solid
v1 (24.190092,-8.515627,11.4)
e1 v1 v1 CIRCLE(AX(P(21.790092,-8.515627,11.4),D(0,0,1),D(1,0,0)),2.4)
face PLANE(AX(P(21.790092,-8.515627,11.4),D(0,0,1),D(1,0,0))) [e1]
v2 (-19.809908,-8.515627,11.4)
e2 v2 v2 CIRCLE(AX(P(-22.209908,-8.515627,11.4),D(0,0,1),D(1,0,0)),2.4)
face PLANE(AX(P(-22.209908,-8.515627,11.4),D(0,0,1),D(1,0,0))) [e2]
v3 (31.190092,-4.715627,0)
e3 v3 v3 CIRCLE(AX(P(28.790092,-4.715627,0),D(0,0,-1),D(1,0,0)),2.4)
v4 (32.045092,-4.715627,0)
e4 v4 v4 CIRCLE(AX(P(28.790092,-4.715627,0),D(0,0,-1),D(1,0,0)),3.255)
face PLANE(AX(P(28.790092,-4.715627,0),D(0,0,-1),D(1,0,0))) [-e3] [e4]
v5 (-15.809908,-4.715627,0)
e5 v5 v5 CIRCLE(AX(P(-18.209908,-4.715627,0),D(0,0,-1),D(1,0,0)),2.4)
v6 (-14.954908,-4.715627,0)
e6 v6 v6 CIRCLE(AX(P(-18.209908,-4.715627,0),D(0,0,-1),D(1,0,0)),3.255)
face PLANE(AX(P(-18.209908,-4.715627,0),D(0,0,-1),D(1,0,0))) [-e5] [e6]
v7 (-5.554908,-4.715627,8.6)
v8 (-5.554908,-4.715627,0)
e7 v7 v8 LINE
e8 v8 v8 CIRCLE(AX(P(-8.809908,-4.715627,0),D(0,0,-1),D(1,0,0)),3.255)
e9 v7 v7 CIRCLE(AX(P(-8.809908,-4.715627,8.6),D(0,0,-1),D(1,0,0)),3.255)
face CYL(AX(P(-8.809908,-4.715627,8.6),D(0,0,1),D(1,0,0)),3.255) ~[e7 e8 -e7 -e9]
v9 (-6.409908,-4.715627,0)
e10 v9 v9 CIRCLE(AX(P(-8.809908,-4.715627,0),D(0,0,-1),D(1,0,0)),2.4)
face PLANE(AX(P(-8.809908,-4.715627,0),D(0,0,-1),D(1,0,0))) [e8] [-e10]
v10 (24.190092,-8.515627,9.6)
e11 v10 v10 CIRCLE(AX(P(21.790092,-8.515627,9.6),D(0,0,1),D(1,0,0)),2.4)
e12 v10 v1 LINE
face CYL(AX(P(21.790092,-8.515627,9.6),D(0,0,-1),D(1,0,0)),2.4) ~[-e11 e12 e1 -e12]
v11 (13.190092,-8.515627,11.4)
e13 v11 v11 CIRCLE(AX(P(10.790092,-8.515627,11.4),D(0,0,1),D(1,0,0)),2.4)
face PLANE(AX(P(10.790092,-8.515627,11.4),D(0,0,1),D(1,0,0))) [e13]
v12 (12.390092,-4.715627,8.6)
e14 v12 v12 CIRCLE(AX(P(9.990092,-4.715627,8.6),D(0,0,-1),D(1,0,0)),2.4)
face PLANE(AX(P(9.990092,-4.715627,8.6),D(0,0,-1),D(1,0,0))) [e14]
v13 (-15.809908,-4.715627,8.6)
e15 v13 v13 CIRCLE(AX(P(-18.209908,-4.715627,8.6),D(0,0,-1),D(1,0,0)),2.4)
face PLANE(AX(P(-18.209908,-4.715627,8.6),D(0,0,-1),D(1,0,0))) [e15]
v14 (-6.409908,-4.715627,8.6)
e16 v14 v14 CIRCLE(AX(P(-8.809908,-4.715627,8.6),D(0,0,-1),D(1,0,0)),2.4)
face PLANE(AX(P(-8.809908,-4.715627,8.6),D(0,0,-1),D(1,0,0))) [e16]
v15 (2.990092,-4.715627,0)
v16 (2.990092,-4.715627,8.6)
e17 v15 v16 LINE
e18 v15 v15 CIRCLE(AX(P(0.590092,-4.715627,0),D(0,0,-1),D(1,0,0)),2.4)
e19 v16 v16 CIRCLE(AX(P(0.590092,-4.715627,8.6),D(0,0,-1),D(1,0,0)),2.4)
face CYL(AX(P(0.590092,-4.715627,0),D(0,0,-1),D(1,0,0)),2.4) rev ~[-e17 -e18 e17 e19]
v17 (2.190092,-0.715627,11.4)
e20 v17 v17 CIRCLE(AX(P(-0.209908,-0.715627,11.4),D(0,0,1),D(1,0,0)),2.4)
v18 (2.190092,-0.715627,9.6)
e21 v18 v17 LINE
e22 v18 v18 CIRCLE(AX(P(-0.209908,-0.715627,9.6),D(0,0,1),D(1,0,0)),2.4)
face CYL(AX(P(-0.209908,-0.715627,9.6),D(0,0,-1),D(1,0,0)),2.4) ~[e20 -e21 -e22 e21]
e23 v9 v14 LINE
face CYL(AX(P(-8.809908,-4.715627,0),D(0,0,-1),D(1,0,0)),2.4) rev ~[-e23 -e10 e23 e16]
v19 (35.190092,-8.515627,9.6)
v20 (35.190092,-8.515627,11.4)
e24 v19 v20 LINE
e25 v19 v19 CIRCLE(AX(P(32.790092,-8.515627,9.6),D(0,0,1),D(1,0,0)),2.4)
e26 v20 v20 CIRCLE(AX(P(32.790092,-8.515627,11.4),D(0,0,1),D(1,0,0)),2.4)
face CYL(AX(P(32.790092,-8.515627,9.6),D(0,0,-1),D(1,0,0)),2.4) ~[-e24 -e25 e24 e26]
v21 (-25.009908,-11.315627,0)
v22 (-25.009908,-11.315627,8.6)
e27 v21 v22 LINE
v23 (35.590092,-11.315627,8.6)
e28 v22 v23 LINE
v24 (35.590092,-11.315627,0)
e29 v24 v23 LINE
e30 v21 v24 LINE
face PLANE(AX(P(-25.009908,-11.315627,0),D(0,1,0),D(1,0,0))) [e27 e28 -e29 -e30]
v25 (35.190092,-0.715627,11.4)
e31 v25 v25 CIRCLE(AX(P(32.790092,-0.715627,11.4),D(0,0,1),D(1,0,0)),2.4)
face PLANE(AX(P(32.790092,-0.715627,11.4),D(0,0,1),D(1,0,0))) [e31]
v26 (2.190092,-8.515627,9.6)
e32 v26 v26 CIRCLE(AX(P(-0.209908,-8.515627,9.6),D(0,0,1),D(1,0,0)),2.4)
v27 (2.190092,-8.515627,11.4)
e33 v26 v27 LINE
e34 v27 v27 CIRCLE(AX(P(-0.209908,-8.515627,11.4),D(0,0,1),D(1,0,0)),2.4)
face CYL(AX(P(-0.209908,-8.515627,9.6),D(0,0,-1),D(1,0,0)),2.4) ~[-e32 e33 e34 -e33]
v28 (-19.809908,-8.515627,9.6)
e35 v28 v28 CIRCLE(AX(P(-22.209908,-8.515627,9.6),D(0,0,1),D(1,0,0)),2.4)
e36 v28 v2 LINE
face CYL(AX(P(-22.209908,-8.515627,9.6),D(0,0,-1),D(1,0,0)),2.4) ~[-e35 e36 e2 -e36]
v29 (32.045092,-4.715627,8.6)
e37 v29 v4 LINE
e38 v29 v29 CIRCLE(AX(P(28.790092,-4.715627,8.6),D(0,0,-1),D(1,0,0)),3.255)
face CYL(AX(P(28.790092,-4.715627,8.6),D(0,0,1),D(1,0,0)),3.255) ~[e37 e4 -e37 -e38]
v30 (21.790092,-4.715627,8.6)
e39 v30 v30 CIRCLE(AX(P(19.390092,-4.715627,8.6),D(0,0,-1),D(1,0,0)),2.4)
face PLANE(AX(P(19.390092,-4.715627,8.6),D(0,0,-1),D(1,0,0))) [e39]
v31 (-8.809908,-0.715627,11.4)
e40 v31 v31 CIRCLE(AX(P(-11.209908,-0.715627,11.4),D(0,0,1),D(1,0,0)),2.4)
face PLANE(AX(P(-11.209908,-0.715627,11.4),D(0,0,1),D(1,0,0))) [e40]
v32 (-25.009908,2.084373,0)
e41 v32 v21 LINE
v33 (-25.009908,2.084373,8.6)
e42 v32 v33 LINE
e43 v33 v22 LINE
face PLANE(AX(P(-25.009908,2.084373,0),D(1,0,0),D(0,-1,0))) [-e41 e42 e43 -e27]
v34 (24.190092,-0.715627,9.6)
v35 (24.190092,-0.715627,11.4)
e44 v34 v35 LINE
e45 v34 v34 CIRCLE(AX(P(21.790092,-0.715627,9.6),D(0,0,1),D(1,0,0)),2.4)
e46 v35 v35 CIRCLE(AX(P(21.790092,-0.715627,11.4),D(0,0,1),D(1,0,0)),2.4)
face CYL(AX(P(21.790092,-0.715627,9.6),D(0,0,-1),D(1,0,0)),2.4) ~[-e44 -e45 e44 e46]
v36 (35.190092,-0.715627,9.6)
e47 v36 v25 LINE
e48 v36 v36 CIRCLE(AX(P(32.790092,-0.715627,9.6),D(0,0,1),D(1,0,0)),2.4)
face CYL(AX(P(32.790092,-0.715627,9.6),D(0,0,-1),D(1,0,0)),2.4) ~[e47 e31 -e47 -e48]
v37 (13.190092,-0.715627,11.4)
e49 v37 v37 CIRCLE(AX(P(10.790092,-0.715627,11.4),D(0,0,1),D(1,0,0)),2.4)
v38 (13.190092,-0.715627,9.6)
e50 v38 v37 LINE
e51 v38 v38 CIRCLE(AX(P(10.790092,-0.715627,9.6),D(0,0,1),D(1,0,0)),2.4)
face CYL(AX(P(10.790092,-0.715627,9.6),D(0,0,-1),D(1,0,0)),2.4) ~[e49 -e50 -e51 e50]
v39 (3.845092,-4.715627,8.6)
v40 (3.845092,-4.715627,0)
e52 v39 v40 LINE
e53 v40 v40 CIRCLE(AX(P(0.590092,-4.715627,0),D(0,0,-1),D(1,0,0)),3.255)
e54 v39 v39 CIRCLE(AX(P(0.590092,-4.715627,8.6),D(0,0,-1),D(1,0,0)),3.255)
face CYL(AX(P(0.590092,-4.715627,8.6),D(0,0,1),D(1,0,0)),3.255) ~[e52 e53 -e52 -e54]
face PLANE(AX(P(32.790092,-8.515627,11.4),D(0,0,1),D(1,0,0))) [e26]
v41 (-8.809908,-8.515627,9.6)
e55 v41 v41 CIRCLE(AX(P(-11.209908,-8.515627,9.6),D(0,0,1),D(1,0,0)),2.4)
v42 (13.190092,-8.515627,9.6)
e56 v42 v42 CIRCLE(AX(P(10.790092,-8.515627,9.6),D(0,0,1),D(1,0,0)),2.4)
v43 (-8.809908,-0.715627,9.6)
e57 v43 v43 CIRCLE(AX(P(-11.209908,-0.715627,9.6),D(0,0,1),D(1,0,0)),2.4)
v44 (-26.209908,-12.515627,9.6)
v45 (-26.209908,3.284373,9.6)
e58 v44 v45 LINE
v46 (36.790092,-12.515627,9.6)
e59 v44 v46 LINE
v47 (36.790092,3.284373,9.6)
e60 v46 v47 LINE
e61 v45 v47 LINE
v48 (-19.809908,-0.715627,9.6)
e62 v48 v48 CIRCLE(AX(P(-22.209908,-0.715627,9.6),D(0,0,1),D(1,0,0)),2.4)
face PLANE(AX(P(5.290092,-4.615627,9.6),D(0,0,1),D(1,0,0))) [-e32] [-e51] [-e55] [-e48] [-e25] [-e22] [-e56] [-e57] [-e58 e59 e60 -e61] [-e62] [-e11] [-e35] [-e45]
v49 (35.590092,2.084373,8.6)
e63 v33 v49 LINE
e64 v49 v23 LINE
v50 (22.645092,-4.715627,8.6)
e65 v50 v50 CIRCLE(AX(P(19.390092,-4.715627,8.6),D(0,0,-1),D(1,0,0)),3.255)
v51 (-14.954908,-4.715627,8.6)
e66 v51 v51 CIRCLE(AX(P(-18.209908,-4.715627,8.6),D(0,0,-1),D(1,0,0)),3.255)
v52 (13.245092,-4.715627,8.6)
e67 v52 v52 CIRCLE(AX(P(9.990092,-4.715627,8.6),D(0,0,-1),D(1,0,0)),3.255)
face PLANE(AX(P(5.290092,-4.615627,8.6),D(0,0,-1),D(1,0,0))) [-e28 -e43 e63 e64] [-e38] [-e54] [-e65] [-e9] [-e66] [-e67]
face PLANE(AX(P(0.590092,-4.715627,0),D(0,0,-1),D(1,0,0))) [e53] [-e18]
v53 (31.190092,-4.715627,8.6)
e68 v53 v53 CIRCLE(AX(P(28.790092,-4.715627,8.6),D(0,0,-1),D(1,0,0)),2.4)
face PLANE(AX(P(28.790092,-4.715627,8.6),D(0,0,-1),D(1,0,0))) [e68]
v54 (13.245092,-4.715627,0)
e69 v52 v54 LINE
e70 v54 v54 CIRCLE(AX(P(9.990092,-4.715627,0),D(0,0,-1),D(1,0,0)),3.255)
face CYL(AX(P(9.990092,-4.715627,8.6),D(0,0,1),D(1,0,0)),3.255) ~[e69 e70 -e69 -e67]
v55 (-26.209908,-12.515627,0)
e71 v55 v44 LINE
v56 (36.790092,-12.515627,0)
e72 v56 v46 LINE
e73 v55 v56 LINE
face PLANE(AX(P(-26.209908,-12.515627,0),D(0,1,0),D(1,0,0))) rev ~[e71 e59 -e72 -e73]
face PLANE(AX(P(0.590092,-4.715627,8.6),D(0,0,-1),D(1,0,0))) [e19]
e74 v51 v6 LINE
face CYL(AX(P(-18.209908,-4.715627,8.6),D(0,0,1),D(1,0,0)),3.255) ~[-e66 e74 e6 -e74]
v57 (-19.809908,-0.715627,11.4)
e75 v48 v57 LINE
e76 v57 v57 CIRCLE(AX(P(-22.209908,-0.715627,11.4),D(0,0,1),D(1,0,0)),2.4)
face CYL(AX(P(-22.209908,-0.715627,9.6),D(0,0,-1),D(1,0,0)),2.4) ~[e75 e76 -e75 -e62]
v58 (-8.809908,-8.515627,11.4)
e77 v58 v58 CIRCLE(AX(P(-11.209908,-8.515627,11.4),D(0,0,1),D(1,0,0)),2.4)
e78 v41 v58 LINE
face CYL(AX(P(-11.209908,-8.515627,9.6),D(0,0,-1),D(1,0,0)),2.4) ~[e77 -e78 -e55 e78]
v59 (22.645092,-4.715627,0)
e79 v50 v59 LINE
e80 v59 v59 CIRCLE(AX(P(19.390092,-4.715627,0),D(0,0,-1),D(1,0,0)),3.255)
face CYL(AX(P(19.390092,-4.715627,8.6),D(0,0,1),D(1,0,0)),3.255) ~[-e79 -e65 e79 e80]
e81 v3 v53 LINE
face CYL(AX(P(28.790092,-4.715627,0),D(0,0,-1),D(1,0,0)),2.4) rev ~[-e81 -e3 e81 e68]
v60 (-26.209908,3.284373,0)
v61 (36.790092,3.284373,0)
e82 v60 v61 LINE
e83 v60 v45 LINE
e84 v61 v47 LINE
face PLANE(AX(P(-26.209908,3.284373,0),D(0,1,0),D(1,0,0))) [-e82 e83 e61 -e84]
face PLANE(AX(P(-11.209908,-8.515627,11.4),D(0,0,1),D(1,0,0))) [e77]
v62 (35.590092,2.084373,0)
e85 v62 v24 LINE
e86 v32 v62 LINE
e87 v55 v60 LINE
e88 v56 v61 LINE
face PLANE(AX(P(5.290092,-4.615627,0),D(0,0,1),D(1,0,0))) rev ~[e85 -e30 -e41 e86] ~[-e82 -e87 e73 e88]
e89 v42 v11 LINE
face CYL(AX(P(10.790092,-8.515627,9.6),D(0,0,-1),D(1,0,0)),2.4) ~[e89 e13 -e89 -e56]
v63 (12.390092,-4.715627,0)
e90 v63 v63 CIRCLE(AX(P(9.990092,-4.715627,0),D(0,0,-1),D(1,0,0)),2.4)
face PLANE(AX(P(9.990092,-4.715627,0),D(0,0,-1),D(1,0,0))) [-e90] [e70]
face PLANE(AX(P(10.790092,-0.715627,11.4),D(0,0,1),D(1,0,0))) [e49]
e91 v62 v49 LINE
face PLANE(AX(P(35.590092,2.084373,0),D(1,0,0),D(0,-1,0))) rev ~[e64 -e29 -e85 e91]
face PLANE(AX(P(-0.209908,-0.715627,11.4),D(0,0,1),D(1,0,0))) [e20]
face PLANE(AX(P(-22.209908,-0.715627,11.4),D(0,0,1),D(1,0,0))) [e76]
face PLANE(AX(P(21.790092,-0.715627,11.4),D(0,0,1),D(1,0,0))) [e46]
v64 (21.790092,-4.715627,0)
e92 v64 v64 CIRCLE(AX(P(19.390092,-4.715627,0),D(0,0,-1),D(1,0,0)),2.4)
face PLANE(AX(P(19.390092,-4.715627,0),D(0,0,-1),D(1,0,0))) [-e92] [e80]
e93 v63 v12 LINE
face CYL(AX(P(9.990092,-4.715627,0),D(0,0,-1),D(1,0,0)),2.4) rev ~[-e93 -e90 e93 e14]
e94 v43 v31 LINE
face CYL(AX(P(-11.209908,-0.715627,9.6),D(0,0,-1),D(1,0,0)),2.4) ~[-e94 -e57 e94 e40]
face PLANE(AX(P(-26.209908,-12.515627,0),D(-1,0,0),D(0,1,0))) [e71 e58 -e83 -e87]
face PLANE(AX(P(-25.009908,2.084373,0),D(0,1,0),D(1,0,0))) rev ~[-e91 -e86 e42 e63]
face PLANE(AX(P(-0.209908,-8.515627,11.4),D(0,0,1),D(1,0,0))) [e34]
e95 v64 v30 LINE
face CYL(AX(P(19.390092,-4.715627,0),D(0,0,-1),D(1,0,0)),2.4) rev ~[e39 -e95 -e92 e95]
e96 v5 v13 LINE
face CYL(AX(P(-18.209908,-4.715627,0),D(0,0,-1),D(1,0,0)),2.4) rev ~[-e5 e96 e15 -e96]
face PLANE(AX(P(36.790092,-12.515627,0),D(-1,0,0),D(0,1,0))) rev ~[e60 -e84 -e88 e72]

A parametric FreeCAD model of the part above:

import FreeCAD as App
import Part
import Sketcher

V = App.Vector

doc = App.newDocument("Part")
body = doc.addObject("PartDesign::Body", "Body")

sketch1 = body.newObject("Sketcher::SketchObject", "Sketch")
sketch1.AttachmentSupport = (doc.getObject("XY_Plane"), [""])
sketch1.MapMode = "FlatFace"
sketch1.addGeometry([
    Part.LineSegment(V(-26.209908, 3.284373, 0), V(-26.209908, -12.515627, 0)),
    Part.LineSegment(V(-26.209908, -12.515627, 0), V(36.790092, -12.515627, 0)),
    Part.LineSegment(V(36.790092, -12.515627, 0), V(36.790092, 3.284373, 0)),
    Part.LineSegment(V(36.790092, 3.284373, 0), V(-26.209908, 3.284373, 0)),
], False)
sketch1.addConstraint([
    Sketcher.Constraint("Coincident", 0, 2, 1, 1),
    Sketcher.Constraint("Coincident", 1, 2, 2, 1),
    Sketcher.Constraint("Coincident", 2, 2, 3, 1),
    Sketcher.Constraint("Coincident", 3, 2, 0, 1),
    Sketcher.Constraint("Vertical", 0),
    Sketcher.Constraint("Horizontal", 1),
    Sketcher.Constraint("Vertical", 2),
    Sketcher.Constraint("Horizontal", 3),
    Sketcher.Constraint("DistanceX", 1, 1, 1, 2, 63.0),
    Sketcher.Constraint("DistanceY", 0, 2, 0, 1, 15.8),
    Sketcher.Constraint("DistanceX", 0, 2, -1, 1, 26.209908),
    Sketcher.Constraint("DistanceY", 0, 2, -1, 1, 12.515627),
])
pad1 = body.newObject("PartDesign::Pad", "Pad")
pad1.Profile = sketch1
pad1.Length = 9.6

sketch2 = body.newObject("Sketcher::SketchObject", "Sketch001")
sketch2.AttachmentSupport = (doc.getObject("XY_Plane"), [""])
sketch2.MapMode = "FlatFace"
sketch2.addGeometry([
    Part.LineSegment(V(-25.009908, -11.315627, 0), V(-25.009908, 2.084373, 0)),
    Part.LineSegment(V(-25.009908, 2.084373, 0), V(35.590092, 2.084373, 0)),
    Part.LineSegment(V(35.590092, 2.084373, 0), V(35.590092, -11.315627, 0)),
    Part.LineSegment(V(35.590092, -11.315627, 0), V(-25.009908, -11.315627, 0)),
], False)
sketch2.addConstraint([
    Sketcher.Constraint("Coincident", 0, 2, 1, 1),
    Sketcher.Constraint("Coincident", 1, 2, 2, 1),
    Sketcher.Constraint("Coincident", 2, 2, 3, 1),
    Sketcher.Constraint("Coincident", 3, 2, 0, 1),
    Sketcher.Constraint("Vertical", 0),
    Sketcher.Constraint("Horizontal", 1),
    Sketcher.Constraint("Vertical", 2),
    Sketcher.Constraint("Horizontal", 3),
    Sketcher.Constraint("DistanceX", 1, 1, 1, 2, 60.6),
    Sketcher.Constraint("DistanceY", 0, 1, 0, 2, 13.4),
    Sketcher.Constraint("DistanceX", 0, 2, -1, 1, 25.009908),
    Sketcher.Constraint("DistanceY", -1, 1, 0, 2, 2.084373),
])
pocket1 = body.newObject("PartDesign::Pocket", "Pocket")
pocket1.Profile = sketch2
pocket1.Length = 8.6
pocket1.Reversed = True

sketch3 = body.newObject("Sketcher::SketchObject", "Sketch002")
sketch3.AttachmentSupport = (doc.getObject("XY_Plane"), [""])
sketch3.MapMode = "FlatFace"
sketch3.AttachmentOffset = App.Placement(V(0, 0, 9.6), App.Rotation())
sketch3.addGeometry([
    Part.Circle(V(-22.209908, -0.715627, 0), V(0, 0, 1), 2.4),
    Part.Circle(V(-22.209908, -8.515627, 0), V(0, 0, 1), 2.4),
], False)
sketch3.addConstraint([
    Sketcher.Constraint("Equal", 0, 1),
    Sketcher.Constraint("Vertical", 0, 3, 1, 3),
    Sketcher.Constraint("Diameter", 0, 4.8),
    Sketcher.Constraint("DistanceY", 1, 3, 0, 3, 7.8),
    Sketcher.Constraint("DistanceX", 0, 3, -1, 1, 22.209908),
    Sketcher.Constraint("DistanceY", 0, 3, -1, 1, 0.715627),
])
pad2 = body.newObject("PartDesign::Pad", "Pad001")
pad2.Profile = sketch3
pad2.Length = 1.8
doc.recompute()

linearpattern = body.newObject("PartDesign::LinearPattern", "LinearPattern")
linearpattern.Originals = [pad2]
linearpattern.Direction = (doc.getObject("X_Axis"), [""])
linearpattern.Mode = "offset"
linearpattern.Offset = 11
linearpattern.Occurrences = 6
body.Tip = linearpattern

sketch4 = body.newObject("Sketcher::SketchObject", "Sketch003")
sketch4.AttachmentSupport = (doc.getObject("XY_Plane"), [""])
sketch4.MapMode = "FlatFace"
sketch4.AttachmentOffset = App.Placement(V(0, 0, 8.6), App.Rotation())
sketch4.addGeometry(Part.Circle(V(-18.209908, -4.715627, 0), V(0, 0, 1), 3.255), False)
sketch4.addConstraint([
    Sketcher.Constraint("Diameter", 0, 6.51),
    Sketcher.Constraint("DistanceX", 0, 3, -1, 1, 18.209908),
    Sketcher.Constraint("DistanceY", 0, 3, -1, 1, 4.715627),
])
pad3 = body.newObject("PartDesign::Pad", "Pad002")
pad3.Profile = sketch4
pad3.Length = 8.6
pad3.Reversed = True
doc.recompute()

linearpattern2 = body.newObject("PartDesign::LinearPattern", "LinearPattern001")
linearpattern2.Originals = [pad3]
linearpattern2.Direction = (doc.getObject("X_Axis"), [""])
linearpattern2.Mode = "offset"
linearpattern2.Offset = 9.4
linearpattern2.Occurrences = 6
body.Tip = linearpattern2

sketch5 = body.newObject("Sketcher::SketchObject", "Sketch004")
sketch5.AttachmentSupport = (doc.getObject("XY_Plane"), [""])
sketch5.MapMode = "FlatFace"
sketch5.addGeometry(Part.Circle(V(-18.209908, -4.715627, 0), V(0, 0, 1), 2.4), False)
sketch5.addConstraint([
    Sketcher.Constraint("Diameter", 0, 4.8),
    Sketcher.Constraint("DistanceX", 0, 3, -1, 1, 18.209908),
    Sketcher.Constraint("DistanceY", 0, 3, -1, 1, 4.715627),
])
pocket2 = body.newObject("PartDesign::Pocket", "Pocket001")
pocket2.Profile = sketch5
pocket2.Length = 8.6
pocket2.Reversed = True
doc.recompute()

linearpattern3 = body.newObject("PartDesign::LinearPattern", "LinearPattern002")
linearpattern3.Originals = [pocket2]
linearpattern3.Direction = (doc.getObject("X_Axis"), [""])
linearpattern3.Mode = "offset"
linearpattern3.Offset = 9.4
linearpattern3.Occurrences = 6
body.Tip = linearpattern3

doc.recompute()
